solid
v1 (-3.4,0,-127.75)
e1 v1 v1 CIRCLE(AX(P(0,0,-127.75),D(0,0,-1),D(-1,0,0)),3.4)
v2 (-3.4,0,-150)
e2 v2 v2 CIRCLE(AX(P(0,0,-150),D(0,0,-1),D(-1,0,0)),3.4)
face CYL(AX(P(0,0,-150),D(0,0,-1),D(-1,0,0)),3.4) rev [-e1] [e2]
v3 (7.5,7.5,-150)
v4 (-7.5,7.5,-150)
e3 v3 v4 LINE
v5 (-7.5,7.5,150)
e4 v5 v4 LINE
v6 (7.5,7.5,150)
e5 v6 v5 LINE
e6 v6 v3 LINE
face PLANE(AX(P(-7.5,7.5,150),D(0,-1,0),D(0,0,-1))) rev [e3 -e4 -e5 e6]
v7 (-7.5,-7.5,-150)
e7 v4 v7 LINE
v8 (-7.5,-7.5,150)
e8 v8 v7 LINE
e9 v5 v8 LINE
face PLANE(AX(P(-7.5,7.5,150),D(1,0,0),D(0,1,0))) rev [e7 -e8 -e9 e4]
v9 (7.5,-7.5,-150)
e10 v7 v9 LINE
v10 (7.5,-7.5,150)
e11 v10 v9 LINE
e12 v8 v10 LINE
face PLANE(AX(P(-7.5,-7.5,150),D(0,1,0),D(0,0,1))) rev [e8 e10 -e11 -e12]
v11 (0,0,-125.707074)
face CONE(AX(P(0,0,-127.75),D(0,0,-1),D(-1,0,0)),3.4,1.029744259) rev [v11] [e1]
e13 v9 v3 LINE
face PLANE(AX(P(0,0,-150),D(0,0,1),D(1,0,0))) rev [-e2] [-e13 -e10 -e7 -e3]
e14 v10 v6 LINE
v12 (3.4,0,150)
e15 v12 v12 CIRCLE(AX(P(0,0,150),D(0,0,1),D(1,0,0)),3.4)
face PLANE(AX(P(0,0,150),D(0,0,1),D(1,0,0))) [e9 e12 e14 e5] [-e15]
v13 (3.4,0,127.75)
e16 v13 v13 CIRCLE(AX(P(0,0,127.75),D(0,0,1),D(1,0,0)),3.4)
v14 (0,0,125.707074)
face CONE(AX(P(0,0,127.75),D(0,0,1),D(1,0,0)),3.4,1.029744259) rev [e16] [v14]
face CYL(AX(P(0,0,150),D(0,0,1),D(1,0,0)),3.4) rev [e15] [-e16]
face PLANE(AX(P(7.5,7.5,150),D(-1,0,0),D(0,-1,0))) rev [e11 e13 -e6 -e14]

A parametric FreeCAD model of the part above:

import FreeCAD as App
import Part
import Sketcher
Q = App.Units.Quantity


def add_polygon(sketch, points):
    """Adds a closed chain of lines whose ends are joined by coincident constraints."""
    first, n = sketch.GeometryCount, len(points)
    for a, b in zip(points, points[1:] + points[:1]):
        sketch.addGeometry(Part.LineSegment(App.Vector(*a, 0), App.Vector(*b, 0)), False)
    for i in range(n):
        sketch.addConstraint(Sketcher.Constraint("Coincident", first + i, 2, first + (i + 1) % n, 1))

doc = App.newDocument("Part")
body = doc.addObject("PartDesign::Body", "Body")

# Sketch on XY plane
sketch1 = doc.addObject("Sketcher::SketchObject", "Sketch")
body.addObject(sketch1)
sketch1.AttachmentSupport = (doc.XY_Plane, [""])
sketch1.MapMode = "FlatFace"
add_polygon(sketch1, [(-8, 8), (-8, -8), (8, -8), (8, 8)])  # lines 0-3
sketch1.addConstraint(Sketcher.Constraint("Vertical", 0))
sketch1.addConstraint(Sketcher.Constraint("Horizontal", 1))
sketch1.addConstraint(Sketcher.Constraint("Vertical", 2))
sketch1.addConstraint(Sketcher.Constraint("Horizontal", 3))
sketch1.addConstraint(Sketcher.Constraint("Symmetric", 0, 2, 2, 2, -1, 1))
sketch1.addConstraint(Sketcher.Constraint("Equal", 3, 0))
sketch1.addConstraint(Sketcher.Constraint("DistanceX", 1, 1, 1, 2, 15.0))
pad1 = doc.addObject("PartDesign::Pad", "Pad")
body.addObject(pad1)
pad1.Profile = sketch1
pad1.Length = 300
pad1.Midplane = True

# Sketch on YZ plane
sketch2 = doc.addObject("Sketcher::SketchObject", "Sketch001")
body.addObject(sketch2)
sketch2.AttachmentSupport = (doc.YZ_Plane, [""])
sketch2.MapMode = "FlatFace"
add_polygon(sketch2, [(0, 125.7), (0, 150), (-3.4, 150), (-3.4, 127.8)])  # lines 0-3
sketch2.addConstraint(Sketcher.Constraint("Vertical", 0))
sketch2.addConstraint(Sketcher.Constraint("Horizontal", 1))
sketch2.addConstraint(Sketcher.Constraint("Vertical", 2))
sketch2.addConstraint(Sketcher.Constraint("PointOnObject", 0, 2, -2))
sketch2.addConstraint(Sketcher.Constraint("Angle", 3, Q("-31 deg")))
sketch2.addConstraint(Sketcher.Constraint("DistanceX", 1, 2, 1, 1, 3.4))
sketch2.addConstraint(Sketcher.Constraint("DistanceY", -1, 1, 0, 2, 150.0))
sketch2.addConstraint(Sketcher.Constraint("DistanceY", 2, 2, 2, 1, 22.25))
groove = doc.addObject("PartDesign::Groove", "Groove")
body.addObject(groove)
groove.Profile = sketch2
groove.ReferenceAxis = (sketch2, ["V_Axis"])
groove.Angle = 360
doc.recompute()

mirrored = doc.addObject("PartDesign::Mirrored", "Mirrored")
body.addObject(mirrored)
mirrored.Originals = [groove]
mirrored.MirrorPlane = (doc.XY_Plane, [""])
body.Tip = mirrored

doc.recompute()
